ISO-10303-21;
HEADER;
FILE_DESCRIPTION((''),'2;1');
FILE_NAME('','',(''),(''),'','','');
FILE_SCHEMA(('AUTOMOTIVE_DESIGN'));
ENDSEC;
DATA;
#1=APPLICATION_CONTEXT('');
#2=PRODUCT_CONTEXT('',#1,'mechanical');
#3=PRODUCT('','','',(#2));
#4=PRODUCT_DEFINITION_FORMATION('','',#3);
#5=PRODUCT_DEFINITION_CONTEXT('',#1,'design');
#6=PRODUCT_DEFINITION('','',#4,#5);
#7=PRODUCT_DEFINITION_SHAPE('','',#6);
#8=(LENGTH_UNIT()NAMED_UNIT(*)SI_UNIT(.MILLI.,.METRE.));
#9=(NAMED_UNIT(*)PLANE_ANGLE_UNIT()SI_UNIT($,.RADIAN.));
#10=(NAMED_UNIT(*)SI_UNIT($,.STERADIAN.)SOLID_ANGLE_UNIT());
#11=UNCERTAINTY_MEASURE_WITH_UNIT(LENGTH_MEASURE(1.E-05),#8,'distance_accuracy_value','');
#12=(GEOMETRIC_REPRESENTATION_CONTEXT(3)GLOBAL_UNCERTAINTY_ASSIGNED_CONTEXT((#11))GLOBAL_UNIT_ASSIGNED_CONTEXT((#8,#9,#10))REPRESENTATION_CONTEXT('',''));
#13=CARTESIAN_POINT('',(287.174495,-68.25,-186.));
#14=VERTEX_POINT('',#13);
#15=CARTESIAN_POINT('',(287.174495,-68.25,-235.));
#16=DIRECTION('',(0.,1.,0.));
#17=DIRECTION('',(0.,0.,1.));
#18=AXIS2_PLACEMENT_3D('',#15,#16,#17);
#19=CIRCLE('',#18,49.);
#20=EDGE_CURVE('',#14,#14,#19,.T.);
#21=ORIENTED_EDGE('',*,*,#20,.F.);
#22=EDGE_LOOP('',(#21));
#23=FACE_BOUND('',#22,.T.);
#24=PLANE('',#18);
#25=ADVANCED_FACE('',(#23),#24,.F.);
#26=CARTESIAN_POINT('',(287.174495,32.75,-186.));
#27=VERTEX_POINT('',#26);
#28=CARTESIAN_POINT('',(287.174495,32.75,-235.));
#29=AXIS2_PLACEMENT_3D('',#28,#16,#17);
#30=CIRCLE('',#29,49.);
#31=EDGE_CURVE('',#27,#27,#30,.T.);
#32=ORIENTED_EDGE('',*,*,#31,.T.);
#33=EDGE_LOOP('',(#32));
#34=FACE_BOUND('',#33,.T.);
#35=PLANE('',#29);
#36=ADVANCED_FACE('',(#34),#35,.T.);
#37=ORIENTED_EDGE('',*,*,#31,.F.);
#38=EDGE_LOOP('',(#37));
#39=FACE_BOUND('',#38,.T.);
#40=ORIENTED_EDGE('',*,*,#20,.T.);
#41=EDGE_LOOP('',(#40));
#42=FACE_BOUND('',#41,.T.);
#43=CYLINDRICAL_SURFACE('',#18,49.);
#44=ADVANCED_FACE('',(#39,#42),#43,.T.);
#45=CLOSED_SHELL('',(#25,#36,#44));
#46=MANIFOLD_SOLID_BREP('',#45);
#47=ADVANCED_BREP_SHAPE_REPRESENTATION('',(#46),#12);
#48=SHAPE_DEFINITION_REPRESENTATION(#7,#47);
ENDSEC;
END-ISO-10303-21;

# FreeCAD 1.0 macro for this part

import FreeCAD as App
import Part
import Sketcher

V = App.Vector
Q = App.Units.Quantity

doc = App.newDocument("Part")
body = doc.addObject("PartDesign::Body", "Body")

# Sketch on XZ plane
sketch1 = body.newObject("Sketcher::SketchObject", "Sketch")
sketch1.AttachmentSupport = (doc.getObject("XZ_Plane"), [""])
sketch1.MapMode = "FlatFace"
sketch1.AttachmentOffset = App.Placement(V(0, 0, -32.75), App.Rotation())
sketch1.addGeometry(Part.Circle(V(287.174495, -235, 0), V(0, 0, 1), 49), False)
sketch1.addConstraint(Sketcher.Constraint("Diameter", 0, Q("98 mm")))
sketch1.addConstraint(Sketcher.Constraint("DistanceY", 0, 3, -1, 1, Q("235 mm")))
sketch1.addConstraint(Sketcher.Constraint("DistanceX", -1, 1, 0, 3, Q("287.174495 mm")))
pad1 = body.newObject("PartDesign::Pad", "Pad")
pad1.Profile = sketch1
pad1.Length = 101

doc.recompute()
